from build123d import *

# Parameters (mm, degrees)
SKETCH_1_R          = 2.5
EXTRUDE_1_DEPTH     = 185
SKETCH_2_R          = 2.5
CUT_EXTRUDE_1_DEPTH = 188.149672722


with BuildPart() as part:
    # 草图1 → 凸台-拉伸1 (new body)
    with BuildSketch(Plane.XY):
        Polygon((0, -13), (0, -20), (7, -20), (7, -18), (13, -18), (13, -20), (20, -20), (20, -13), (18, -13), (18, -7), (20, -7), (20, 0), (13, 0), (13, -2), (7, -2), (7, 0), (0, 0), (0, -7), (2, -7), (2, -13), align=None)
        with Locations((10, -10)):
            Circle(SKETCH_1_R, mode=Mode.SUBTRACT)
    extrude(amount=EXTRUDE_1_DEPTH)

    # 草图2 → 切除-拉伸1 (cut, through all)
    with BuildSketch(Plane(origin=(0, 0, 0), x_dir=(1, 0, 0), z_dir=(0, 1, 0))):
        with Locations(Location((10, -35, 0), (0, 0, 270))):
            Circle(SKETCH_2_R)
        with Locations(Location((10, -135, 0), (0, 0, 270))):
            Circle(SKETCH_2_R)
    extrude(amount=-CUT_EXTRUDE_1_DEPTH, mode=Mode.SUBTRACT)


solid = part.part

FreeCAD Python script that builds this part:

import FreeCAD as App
import Part
import Sketcher
Q = App.Units.Quantity


def add_polygon(sketch, points):
    """Adds a closed chain of lines whose ends are joined by coincident constraints."""
    first, n = sketch.GeometryCount, len(points)
    for a, b in zip(points, points[1:] + points[:1]):
        sketch.addGeometry(Part.LineSegment(App.Vector(*a, 0), App.Vector(*b, 0)), False)
    for i in range(n):
        sketch.addConstraint(Sketcher.Constraint("Coincident", first + i, 2, first + (i + 1) % n, 1))

doc = App.newDocument("Part")
body = doc.addObject("PartDesign::Body", "Body")

# Sketch on XY plane
sketch1 = body.newObject("Sketcher::SketchObject", "Sketch")
sketch1.AttachmentSupport = (doc.getObject("XY_Plane"), [""])
sketch1.MapMode = "FlatFace"
add_polygon(sketch1, [(0, -13), (0, -20), (7, -20), (7, -18), (13, -18), (13, -20), (20, -20), (20, -13), (18, -13), (18, -7), (20, -7), (20, 0), (13, 0), (13, -2), (7, -2), (7, 0), (0, 0), (0, -7), (2, -7), (2, -13)])  # lines 0-19
sketch1.addGeometry(Part.Circle(App.Vector(10, -10, 0), App.Vector(0, 0, 1), 2.5), False)  # 20
sketch1.addConstraint(Sketcher.Constraint("Vertical", 0))
sketch1.addConstraint(Sketcher.Constraint("Horizontal", 1))
sketch1.addConstraint(Sketcher.Constraint("Vertical", 2))
sketch1.addConstraint(Sketcher.Constraint("Horizontal", 3))
sketch1.addConstraint(Sketcher.Constraint("Vertical", 4))
sketch1.addConstraint(Sketcher.Constraint("Horizontal", 5))
sketch1.addConstraint(Sketcher.Constraint("Vertical", 6))
sketch1.addConstraint(Sketcher.Constraint("Horizontal", 7))
sketch1.addConstraint(Sketcher.Constraint("Vertical", 8))
sketch1.addConstraint(Sketcher.Constraint("Horizontal", 9))
sketch1.addConstraint(Sketcher.Constraint("Vertical", 10))
sketch1.addConstraint(Sketcher.Constraint("Horizontal", 11))
sketch1.addConstraint(Sketcher.Constraint("Vertical", 12))
sketch1.addConstraint(Sketcher.Constraint("Horizontal", 13))
sketch1.addConstraint(Sketcher.Constraint("Vertical", 14))
sketch1.addConstraint(Sketcher.Constraint("Horizontal", 15))
sketch1.addConstraint(Sketcher.Constraint("Vertical", 16))
sketch1.addConstraint(Sketcher.Constraint("Horizontal", 17))
sketch1.addConstraint(Sketcher.Constraint("Vertical", 18))
sketch1.addConstraint(Sketcher.Constraint("Horizontal", 19))
sketch1.addConstraint(Sketcher.Constraint("Coincident", 15, 2, -1, 1))
sketch1.addConstraint(Sketcher.Constraint("PointOnObject", 0, 2, -2))
sketch1.addConstraint(Sketcher.Constraint("PointOnObject", 10, 2, -1))
sketch1.addConstraint(Sketcher.Constraint("Horizontal", 1, 2, 4, 2))
sketch1.addConstraint(Sketcher.Constraint("Horizontal", 9, 2, 16, 2))
sketch1.addConstraint(Sketcher.Constraint("Horizontal", 7, 2, 18, 2))
sketch1.addConstraint(Sketcher.Constraint("Vertical", 6, 2, 9, 2))
sketch1.addConstraint(Sketcher.Constraint("Vertical", 4, 2, 11, 2))
sketch1.addConstraint(Sketcher.Constraint("Vertical", 2, 2, 13, 2))
sketch1.addConstraint(Sketcher.Constraint("Equal", 1, 5))
sketch1.addConstraint(Sketcher.Constraint("Equal", 9, 17))
sketch1.addConstraint(Sketcher.Constraint("Equal", 15, 0))
sketch1.addConstraint(Sketcher.Constraint("Equal", 19, 2))
sketch1.addConstraint(Sketcher.Constraint("Equal", 13, 8))
sketch1.addConstraint(Sketcher.Constraint("Equal", 6, 10))
sketch1.addConstraint(Sketcher.Constraint("Equal", 4, 12))
sketch1.addConstraint(Sketcher.Constraint("Diameter", 20, Q("5 mm")))
sketch1.addConstraint(Sketcher.Constraint("DistanceX", 1, 1, 1, 2, Q("7 mm")))
sketch1.addConstraint(Sketcher.Constraint("DistanceX", 3, 1, 3, 2, Q("6 mm")))
sketch1.addConstraint(Sketcher.Constraint("DistanceX", 7, 2, 7, 1, Q("2 mm")))
sketch1.addConstraint(Sketcher.Constraint("DistanceX", -1, 1, 20, 3, Q("10 mm")))
sketch1.addConstraint(Sketcher.Constraint("DistanceY", 20, 3, -1, 1, Q("10 mm")))
pad1 = body.newObject("PartDesign::Pad", "Pad")
pad1.Profile = sketch1
pad1.Length = 185

# Sketch on XZ plane
sketch2 = body.newObject("Sketcher::SketchObject", "Sketch001")
sketch2.AttachmentSupport = (doc.getObject("XZ_Plane"), [""])
sketch2.MapMode = "FlatFace"
sketch2.addGeometry(Part.Circle(App.Vector(10, 35, 0), App.Vector(0, 0, 1), 2.5), False)
sketch2.addGeometry(Part.Circle(App.Vector(10, 135, 0), App.Vector(0, 0, 1), 2.5), False)
sketch2.addConstraint(Sketcher.Constraint("Equal", 0, 1))
sketch2.addConstraint(Sketcher.Constraint("Vertical", 0, 3, 1, 3))
sketch2.addConstraint(Sketcher.Constraint("Diameter", 0, Q("5 mm")))
sketch2.addConstraint(Sketcher.Constraint("DistanceX", -1, 1, 0, 3, Q("10 mm")))
sketch2.addConstraint(Sketcher.Constraint("DistanceY", -1, 1, 0, 3, Q("35 mm")))
sketch2.addConstraint(Sketcher.Constraint("DistanceY", -1, 1, 1, 3, Q("135 mm")))
pocket1 = body.newObject("PartDesign::Pocket", "Pocket")
pocket1.Profile = sketch2
pocket1.Type = "ThroughAll"
pocket1.Reversed = True

doc.recompute()
